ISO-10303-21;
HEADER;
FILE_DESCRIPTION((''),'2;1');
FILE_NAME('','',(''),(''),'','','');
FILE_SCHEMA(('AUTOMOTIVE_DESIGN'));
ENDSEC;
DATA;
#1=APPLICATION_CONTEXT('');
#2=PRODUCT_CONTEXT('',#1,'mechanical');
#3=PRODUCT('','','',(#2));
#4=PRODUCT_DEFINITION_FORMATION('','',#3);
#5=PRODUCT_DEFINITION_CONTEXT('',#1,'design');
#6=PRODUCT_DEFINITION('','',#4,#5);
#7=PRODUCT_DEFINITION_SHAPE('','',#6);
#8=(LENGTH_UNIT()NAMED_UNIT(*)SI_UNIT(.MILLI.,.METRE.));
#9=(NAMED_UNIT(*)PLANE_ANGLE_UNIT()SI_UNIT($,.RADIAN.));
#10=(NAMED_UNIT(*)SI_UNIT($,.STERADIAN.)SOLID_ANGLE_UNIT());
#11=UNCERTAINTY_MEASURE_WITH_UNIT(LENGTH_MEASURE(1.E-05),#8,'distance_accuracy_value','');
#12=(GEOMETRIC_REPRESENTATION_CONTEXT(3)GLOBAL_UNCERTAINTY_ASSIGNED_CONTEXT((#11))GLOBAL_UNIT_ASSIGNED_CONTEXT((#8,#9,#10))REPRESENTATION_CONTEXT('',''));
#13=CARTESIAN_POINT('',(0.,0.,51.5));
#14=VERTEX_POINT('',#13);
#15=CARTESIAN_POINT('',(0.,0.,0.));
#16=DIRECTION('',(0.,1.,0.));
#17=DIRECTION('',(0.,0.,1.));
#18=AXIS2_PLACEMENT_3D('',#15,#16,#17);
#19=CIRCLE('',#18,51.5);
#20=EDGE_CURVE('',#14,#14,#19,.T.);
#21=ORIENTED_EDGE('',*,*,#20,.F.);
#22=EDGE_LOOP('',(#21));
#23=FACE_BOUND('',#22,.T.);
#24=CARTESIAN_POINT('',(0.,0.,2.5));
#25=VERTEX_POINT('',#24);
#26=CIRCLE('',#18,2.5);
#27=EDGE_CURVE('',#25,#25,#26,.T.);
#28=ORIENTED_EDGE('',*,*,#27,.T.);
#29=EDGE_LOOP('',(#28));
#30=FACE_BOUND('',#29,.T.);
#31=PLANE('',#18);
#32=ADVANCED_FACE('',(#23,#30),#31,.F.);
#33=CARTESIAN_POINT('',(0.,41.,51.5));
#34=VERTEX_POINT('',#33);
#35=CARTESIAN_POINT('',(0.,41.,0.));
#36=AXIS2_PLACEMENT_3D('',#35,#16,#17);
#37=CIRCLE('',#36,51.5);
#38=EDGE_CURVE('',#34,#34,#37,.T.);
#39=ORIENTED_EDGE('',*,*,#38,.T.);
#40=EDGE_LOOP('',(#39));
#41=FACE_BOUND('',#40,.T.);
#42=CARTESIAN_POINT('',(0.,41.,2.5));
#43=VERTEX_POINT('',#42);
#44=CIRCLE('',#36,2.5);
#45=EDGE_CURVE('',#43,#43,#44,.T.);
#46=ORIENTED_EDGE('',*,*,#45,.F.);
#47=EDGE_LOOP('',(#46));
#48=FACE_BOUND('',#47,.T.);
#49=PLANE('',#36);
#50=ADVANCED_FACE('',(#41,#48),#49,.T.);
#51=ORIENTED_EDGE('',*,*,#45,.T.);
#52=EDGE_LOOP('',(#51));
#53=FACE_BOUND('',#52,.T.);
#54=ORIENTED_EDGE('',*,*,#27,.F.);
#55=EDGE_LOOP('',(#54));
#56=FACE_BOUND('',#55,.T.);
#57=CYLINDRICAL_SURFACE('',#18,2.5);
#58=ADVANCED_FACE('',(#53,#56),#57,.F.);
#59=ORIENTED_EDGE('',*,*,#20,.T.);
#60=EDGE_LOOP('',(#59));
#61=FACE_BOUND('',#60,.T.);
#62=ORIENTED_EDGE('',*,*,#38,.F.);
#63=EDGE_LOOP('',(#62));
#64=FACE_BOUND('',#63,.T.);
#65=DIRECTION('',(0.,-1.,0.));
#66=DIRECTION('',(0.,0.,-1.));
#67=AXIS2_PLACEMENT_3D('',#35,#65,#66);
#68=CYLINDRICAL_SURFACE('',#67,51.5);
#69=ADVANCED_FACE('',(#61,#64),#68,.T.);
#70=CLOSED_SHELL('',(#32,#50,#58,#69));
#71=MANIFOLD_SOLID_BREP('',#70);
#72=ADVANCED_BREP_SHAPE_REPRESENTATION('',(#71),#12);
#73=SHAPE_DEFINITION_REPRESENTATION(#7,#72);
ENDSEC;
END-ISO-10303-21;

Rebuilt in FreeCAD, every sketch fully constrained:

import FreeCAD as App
import Part
import Sketcher

doc = App.newDocument("Part")
body = doc.addObject("PartDesign::Body", "Body")

# Sketch on XZ plane
sketch1 = body.newObject("Sketcher::SketchObject", "Sketch")
sketch1.AttachmentSupport = (doc.getObject("XZ_Plane"), [""])
sketch1.MapMode = "FlatFace"
sketch1.addGeometry(Part.Circle(App.Vector(0, 0, 0), App.Vector(0, 0, 1), 51.5), False)
sketch1.addConstraint(Sketcher.Constraint("Coincident", 0, 3, -1, 1))
sketch1.addConstraint(Sketcher.Constraint("Diameter", 0, 103.0))
pad1 = body.newObject("PartDesign::Pad", "Pad")
pad1.Profile = sketch1
pad1.Length = 41
pad1.Reversed = True

# Sketch on XZ plane
sketch2 = body.newObject("Sketcher::SketchObject", "Sketch001")
sketch2.AttachmentSupport = (doc.getObject("XZ_Plane"), [""])
sketch2.MapMode = "FlatFace"
sketch2.AttachmentOffset = App.Placement(App.Vector(0, 0, -41), App.Rotation())
sketch2.addGeometry(Part.Circle(App.Vector(0, 0, 0), App.Vector(0, 0, 1), 2.5), False)
sketch2.addConstraint(Sketcher.Constraint("Coincident", 0, 3, -1, 1))
sketch2.addConstraint(Sketcher.Constraint("Diameter", 0, 5.0))
pocket1 = body.newObject("PartDesign::Pocket", "Pocket")
pocket1.Profile = sketch2
pocket1.Type = "ThroughAll"
pocket1.Reversed = True

doc.recompute()
